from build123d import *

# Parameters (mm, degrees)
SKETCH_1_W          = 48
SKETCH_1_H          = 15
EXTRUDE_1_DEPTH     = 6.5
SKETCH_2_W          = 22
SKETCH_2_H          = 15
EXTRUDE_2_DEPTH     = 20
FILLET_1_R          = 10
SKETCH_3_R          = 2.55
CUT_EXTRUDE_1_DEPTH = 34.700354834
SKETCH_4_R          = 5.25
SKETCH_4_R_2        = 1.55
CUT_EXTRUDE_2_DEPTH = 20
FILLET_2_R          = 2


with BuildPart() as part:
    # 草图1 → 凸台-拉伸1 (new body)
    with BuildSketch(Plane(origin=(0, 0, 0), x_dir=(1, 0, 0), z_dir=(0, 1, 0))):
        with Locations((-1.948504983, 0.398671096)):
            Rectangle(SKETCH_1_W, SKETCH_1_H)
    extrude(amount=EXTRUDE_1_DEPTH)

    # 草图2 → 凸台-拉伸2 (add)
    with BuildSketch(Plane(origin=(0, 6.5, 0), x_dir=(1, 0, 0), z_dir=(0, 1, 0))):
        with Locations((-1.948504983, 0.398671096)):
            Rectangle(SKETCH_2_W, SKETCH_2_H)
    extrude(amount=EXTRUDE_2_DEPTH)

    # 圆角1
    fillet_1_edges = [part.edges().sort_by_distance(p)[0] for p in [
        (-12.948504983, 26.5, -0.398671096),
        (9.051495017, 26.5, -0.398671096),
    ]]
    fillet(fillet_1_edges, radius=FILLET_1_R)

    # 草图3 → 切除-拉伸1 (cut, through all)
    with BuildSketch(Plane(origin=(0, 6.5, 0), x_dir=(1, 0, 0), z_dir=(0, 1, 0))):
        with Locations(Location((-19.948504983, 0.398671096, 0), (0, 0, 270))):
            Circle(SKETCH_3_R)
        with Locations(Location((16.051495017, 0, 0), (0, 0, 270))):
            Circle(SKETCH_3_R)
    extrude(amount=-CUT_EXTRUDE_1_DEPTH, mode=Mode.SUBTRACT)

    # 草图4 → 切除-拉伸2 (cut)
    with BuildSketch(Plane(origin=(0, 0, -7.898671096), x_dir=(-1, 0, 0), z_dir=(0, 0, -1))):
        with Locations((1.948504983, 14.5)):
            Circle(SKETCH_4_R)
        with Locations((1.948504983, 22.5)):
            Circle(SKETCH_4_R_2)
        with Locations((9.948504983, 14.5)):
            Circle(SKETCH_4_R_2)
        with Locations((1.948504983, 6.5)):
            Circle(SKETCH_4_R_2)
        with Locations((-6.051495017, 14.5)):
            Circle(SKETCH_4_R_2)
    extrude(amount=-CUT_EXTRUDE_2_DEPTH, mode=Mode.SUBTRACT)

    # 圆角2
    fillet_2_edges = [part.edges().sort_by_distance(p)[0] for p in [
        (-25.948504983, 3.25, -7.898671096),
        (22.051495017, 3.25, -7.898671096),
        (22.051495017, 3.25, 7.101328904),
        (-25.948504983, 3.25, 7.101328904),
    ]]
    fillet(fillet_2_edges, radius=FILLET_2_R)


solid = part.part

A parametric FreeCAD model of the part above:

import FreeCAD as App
import Part
import Sketcher
from FreeCAD import Vector
Q = App.Units.Quantity


def edges_at(feature, points):
    """Names of the edges that pass closest to the given points."""
    edges = feature.Shape.Edges
    near = lambda p: min(range(len(edges)), key=lambda i: edges[i].distToShape(Part.Vertex(*p))[0])
    return sorted({f"Edge{near(p) + 1}" for p in points})


def add_polygon(sketch, points):
    """Adds a closed chain of lines whose ends are joined by coincident constraints."""
    first, n = sketch.GeometryCount, len(points)
    for a, b in zip(points, points[1:] + points[:1]):
        sketch.addGeometry(Part.LineSegment(App.Vector(*a, 0), App.Vector(*b, 0)), False)
    for i in range(n):
        sketch.addConstraint(Sketcher.Constraint("Coincident", first + i, 2, first + (i + 1) % n, 1))

doc = App.newDocument("Part")
body = doc.addObject("PartDesign::Body", "Body")

sketch1 = body.newObject("Sketcher::SketchObject", "Sketch")
sketch1.AttachmentSupport = (doc.getObject("XZ_Plane"), [""])
sketch1.MapMode = "FlatFace"
add_polygon(sketch1, [(-26, -8), (-26, 7), (22, 7), (22, -8)])
sketch1.addConstraint(Sketcher.Constraint("Vertical", 0))
sketch1.addConstraint(Sketcher.Constraint("Horizontal", 1))
sketch1.addConstraint(Sketcher.Constraint("Vertical", 2))
sketch1.addConstraint(Sketcher.Constraint("Horizontal", 3))
sketch1.addConstraint(Sketcher.Constraint("DistanceX", 1, 1, 1, 2, Q("48 mm")))
sketch1.addConstraint(Sketcher.Constraint("DistanceY", 0, 1, 0, 2, Q("15 mm")))
sketch1.addConstraint(Sketcher.Constraint("DistanceY", -1, 1, 0, 2, Q("7.101329 mm")))
sketch1.addConstraint(Sketcher.Constraint("DistanceX", 0, 2, -1, 1, Q("25.948505 mm")))
pad1 = body.newObject("PartDesign::Pad", "Pad")
pad1.Profile = sketch1
pad1.Length = 6.5
pad1.Reversed = True

sketch2 = body.newObject("Sketcher::SketchObject", "Sketch001")
sketch2.AttachmentSupport = (doc.getObject("XZ_Plane"), [""])
sketch2.MapMode = "FlatFace"
sketch2.AttachmentOffset = App.Placement(Vector(0, 0, -6.5), App.Rotation())
add_polygon(sketch2, [(-13, -8), (-13, 7), (9, 7), (9, -8)])
sketch2.addConstraint(Sketcher.Constraint("Vertical", 0))
sketch2.addConstraint(Sketcher.Constraint("Horizontal", 1))
sketch2.addConstraint(Sketcher.Constraint("Vertical", 2))
sketch2.addConstraint(Sketcher.Constraint("Horizontal", 3))
sketch2.addConstraint(Sketcher.Constraint("DistanceX", 1, 1, 1, 2, Q("22 mm")))
sketch2.addConstraint(Sketcher.Constraint("DistanceY", 0, 1, 0, 2, Q("15 mm")))
sketch2.addConstraint(Sketcher.Constraint("DistanceY", -1, 1, 0, 2, Q("7.101329 mm")))
sketch2.addConstraint(Sketcher.Constraint("DistanceX", 0, 2, -1, 1, Q("12.948505 mm")))
pad2 = body.newObject("PartDesign::Pad", "Pad001")
pad2.Profile = sketch2
pad2.Length = 20
pad2.Reversed = True
doc.recompute()

fillet = body.newObject("PartDesign::Fillet", "Fillet")
fillet.Base = (pad2, edges_at(pad2, [(-12.949, 26.5, -0.399), (9.051, 26.5, -0.399)]))
fillet.Radius = 10

sketch3 = body.newObject("Sketcher::SketchObject", "Sketch002")
sketch3.AttachmentSupport = (doc.getObject("XZ_Plane"), [""])
sketch3.MapMode = "FlatFace"
sketch3.AttachmentOffset = App.Placement(Vector(0, 0, -6.5), App.Rotation())
sketch3.addGeometry(Part.Circle(Vector(-19.9, -0.4, 0), Vector(0, 0, 1), 2.5), False)
sketch3.addGeometry(Part.Circle(Vector(16.1, 0, 0), Vector(0, 0, 1), 2.5), False)
sketch3.addConstraint(Sketcher.Constraint("Equal", 0, 1))
sketch3.addConstraint(Sketcher.Constraint("PointOnObject", 1, 3, -1))
sketch3.addConstraint(Sketcher.Constraint("Diameter", 0, Q("5.1 mm")))
sketch3.addConstraint(Sketcher.Constraint("DistanceX", 0, 3, 1, 3, Q("36 mm")))
sketch3.addConstraint(Sketcher.Constraint("DistanceY", 0, 3, -1, 1, Q("0.398671 mm")))
sketch3.addConstraint(Sketcher.Constraint("DistanceX", 0, 3, -1, 1, Q("19.948505 mm")))
pocket1 = body.newObject("PartDesign::Pocket", "Pocket")
pocket1.Profile = sketch3
pocket1.Type = "ThroughAll"
pocket1.Reversed = True

sketch4 = body.newObject("Sketcher::SketchObject", "Sketch003")
sketch4.AttachmentSupport = (doc.getObject("XY_Plane"), [""])
sketch4.MapMode = "FlatFace"
sketch4.AttachmentOffset = App.Placement(Vector(0, 0, -7.898671), App.Rotation())
sketch4.addGeometry(Part.Circle(Vector(-1.9, 14.5, 0), Vector(0, 0, 1), 5.2), False)
sketch4.addGeometry(Part.Circle(Vector(-1.9, 22.5, 0), Vector(0, 0, 1), 1.6), False)
sketch4.addGeometry(Part.Circle(Vector(-9.9, 14.5, 0), Vector(0, 0, 1), 1.6), False)
sketch4.addGeometry(Part.Circle(Vector(-1.9, 6.5, 0), Vector(0, 0, 1), 1.6), False)
sketch4.addGeometry(Part.Circle(Vector(6.1, 14.5, 0), Vector(0, 0, 1), 1.6), False)
sketch4.addConstraint(Sketcher.Constraint("Equal", 1, 2))
sketch4.addConstraint(Sketcher.Constraint("Equal", 2, 3))
sketch4.addConstraint(Sketcher.Constraint("Equal", 3, 4))
sketch4.addConstraint(Sketcher.Constraint("Horizontal", 0, 3, 2, 3))
sketch4.addConstraint(Sketcher.Constraint("Horizontal", 2, 3, 4, 3))
sketch4.addConstraint(Sketcher.Constraint("Vertical", 0, 3, 1, 3))
sketch4.addConstraint(Sketcher.Constraint("Vertical", 1, 3, 3, 3))
sketch4.addConstraint(Sketcher.Constraint("Diameter", 0, Q("10.5 mm")))
sketch4.addConstraint(Sketcher.Constraint("Diameter", 1, Q("3.1 mm")))
sketch4.addConstraint(Sketcher.Constraint("DistanceY", 0, 3, 1, 3, Q("8 mm")))
sketch4.addConstraint(Sketcher.Constraint("DistanceX", 2, 3, 0, 3, Q("8 mm")))
sketch4.addConstraint(Sketcher.Constraint("DistanceY", 3, 3, 0, 3, Q("8 mm")))
sketch4.addConstraint(Sketcher.Constraint("DistanceX", 0, 3, 4, 3, Q("8 mm")))
sketch4.addConstraint(Sketcher.Constraint("DistanceY", -1, 1, 0, 3, Q("14.5 mm")))
sketch4.addConstraint(Sketcher.Constraint("DistanceX", 0, 3, -1, 1, Q("1.948505 mm")))
pocket2 = body.newObject("PartDesign::Pocket", "Pocket001")
pocket2.Profile = sketch4
pocket2.Length = 20
pocket2.Reversed = True
doc.recompute()

fillet2 = body.newObject("PartDesign::Fillet", "Fillet001")
fillet2.Base = (pocket2, edges_at(pocket2, [
    (-25.949, 3.25, -7.899),
    (22.051, 3.25, -7.899),
    (22.051, 3.25, 7.101),
    (-25.949, 3.25, 7.101),
]))
fillet2.Radius = 2

doc.recompute()
